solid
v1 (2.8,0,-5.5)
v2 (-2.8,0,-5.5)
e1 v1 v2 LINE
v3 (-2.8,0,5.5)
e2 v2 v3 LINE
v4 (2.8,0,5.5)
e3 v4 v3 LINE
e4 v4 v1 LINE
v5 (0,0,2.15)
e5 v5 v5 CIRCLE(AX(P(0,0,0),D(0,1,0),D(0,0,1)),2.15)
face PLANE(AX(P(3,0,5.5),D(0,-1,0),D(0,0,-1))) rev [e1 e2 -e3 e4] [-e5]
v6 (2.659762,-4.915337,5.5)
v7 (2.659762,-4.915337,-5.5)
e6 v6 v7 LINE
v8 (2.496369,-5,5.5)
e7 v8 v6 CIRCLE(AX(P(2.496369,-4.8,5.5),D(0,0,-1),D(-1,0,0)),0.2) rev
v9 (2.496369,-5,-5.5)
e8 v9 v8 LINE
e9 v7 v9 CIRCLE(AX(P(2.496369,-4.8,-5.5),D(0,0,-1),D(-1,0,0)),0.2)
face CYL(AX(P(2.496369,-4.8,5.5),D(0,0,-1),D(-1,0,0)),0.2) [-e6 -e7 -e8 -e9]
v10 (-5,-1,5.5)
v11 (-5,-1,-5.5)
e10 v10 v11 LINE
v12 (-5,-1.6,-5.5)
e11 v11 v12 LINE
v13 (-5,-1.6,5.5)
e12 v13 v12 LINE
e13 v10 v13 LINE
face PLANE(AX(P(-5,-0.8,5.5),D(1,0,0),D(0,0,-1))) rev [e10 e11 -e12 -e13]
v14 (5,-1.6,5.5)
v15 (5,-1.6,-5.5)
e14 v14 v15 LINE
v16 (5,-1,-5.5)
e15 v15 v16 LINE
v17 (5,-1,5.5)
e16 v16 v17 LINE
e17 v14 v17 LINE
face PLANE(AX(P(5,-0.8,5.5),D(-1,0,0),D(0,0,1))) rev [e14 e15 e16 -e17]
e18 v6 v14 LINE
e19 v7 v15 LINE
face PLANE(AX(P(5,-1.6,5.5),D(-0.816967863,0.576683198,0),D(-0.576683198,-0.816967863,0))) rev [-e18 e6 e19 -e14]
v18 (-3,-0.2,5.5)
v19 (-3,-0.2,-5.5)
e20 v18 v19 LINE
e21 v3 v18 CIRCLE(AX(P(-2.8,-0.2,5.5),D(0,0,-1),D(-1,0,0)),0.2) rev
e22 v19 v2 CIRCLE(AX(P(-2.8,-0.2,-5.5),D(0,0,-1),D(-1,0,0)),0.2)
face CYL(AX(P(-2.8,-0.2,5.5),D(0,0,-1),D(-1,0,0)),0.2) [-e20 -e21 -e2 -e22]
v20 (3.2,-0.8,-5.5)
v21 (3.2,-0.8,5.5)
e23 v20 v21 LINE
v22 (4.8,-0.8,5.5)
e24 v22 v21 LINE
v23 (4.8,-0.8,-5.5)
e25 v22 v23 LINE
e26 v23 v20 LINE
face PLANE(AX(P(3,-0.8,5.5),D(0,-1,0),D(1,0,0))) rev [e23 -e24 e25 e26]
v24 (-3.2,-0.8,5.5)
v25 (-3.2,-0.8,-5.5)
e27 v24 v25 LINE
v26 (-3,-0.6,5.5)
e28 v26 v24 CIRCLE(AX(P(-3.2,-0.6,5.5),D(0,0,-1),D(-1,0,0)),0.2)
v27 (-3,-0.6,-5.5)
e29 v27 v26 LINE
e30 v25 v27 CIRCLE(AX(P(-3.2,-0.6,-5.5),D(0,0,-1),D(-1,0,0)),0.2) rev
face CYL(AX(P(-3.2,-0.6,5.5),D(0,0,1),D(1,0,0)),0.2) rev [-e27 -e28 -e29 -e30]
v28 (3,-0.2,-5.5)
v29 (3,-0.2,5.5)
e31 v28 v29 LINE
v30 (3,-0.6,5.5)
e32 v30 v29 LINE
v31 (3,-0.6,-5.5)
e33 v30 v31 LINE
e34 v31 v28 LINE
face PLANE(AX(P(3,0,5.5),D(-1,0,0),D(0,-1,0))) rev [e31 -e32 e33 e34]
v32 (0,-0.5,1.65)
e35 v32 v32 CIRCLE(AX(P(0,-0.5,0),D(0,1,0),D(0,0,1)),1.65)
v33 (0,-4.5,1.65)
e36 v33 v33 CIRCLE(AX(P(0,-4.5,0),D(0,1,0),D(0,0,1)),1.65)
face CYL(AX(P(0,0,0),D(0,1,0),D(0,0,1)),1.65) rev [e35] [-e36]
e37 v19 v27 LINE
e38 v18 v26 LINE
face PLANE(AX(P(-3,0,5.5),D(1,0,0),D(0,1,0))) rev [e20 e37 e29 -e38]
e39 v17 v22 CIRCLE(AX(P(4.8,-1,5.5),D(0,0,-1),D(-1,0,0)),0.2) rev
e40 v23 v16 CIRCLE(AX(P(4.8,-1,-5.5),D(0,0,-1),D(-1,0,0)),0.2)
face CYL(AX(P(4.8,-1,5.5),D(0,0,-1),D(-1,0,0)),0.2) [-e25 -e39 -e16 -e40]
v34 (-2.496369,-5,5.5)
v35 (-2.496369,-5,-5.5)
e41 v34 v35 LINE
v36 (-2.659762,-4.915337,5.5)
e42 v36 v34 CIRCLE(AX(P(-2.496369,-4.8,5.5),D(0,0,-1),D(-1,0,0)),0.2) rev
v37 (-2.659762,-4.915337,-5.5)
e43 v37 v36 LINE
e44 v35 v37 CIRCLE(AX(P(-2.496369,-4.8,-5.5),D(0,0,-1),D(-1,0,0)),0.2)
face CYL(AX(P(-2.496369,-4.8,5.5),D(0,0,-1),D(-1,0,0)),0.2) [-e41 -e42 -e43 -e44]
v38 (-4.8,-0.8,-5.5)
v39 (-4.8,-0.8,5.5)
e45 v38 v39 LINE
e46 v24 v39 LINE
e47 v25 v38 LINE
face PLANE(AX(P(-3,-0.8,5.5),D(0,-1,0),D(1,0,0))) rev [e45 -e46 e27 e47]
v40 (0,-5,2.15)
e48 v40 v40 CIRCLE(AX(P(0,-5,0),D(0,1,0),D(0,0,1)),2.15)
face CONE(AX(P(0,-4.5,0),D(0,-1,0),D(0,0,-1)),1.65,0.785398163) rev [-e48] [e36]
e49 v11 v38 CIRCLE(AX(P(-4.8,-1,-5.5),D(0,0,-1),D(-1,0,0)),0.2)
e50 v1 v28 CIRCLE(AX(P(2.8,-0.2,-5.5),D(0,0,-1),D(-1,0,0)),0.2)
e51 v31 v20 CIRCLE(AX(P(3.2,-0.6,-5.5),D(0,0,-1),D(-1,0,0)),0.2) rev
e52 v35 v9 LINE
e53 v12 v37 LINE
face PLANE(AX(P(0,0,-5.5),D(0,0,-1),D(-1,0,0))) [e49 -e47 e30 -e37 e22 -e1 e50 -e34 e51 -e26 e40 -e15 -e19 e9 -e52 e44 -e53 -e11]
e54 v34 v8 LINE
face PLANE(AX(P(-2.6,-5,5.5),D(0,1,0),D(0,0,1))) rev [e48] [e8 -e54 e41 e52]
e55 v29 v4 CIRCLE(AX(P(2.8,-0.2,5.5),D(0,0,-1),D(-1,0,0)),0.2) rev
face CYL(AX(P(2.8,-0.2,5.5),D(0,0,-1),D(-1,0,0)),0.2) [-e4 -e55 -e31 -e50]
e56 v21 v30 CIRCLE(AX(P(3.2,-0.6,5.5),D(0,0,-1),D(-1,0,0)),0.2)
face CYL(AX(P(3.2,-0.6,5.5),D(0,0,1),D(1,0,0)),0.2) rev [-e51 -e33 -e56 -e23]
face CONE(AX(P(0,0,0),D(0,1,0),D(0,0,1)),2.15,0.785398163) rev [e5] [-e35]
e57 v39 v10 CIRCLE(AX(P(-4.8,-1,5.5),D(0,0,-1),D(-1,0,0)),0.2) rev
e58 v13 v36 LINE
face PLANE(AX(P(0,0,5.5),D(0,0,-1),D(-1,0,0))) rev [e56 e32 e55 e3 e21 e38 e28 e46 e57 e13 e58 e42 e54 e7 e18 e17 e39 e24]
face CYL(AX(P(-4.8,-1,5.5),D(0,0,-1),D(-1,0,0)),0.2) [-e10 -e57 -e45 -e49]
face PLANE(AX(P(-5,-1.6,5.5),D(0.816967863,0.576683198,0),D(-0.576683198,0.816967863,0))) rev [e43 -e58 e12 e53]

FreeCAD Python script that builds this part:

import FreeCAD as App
import Part
import Sketcher

V = App.Vector
Q = App.Units.Quantity


def edges_at(feature, points):
    """Names of the edges that pass closest to the given points."""
    edges = feature.Shape.Edges
    near = lambda p: min(range(len(edges)), key=lambda i: edges[i].distToShape(Part.Vertex(*p))[0])
    return sorted({f"Edge{near(p) + 1}" for p in points})

doc = App.newDocument("Part")
body = doc.addObject("PartDesign::Body", "Body")

sketch1 = body.newObject("Sketcher::SketchObject", "Sketch")
sketch1.AttachmentSupport = (doc.getObject("XY_Plane"), [""])
sketch1.MapMode = "FlatFace"
sketch1.addGeometry(Part.LineSegment(V(3, 0, 0), V(-3, 0, 0)), False)
sketch1.addGeometry(Part.LineSegment(V(-3, 0, 0), V(-3, -0.8, 0)), False)
sketch1.addGeometry(Part.LineSegment(V(-3, -0.8, 0), V(-5, -0.8, 0)), False)
sketch1.addGeometry(Part.LineSegment(V(-5, -0.8, 0), V(-5, -1.6, 0)), False)
sketch1.addGeometry(Part.LineSegment(V(-5, -1.6, 0), V(-2.6, -5, 0)), False)
sketch1.addGeometry(Part.LineSegment(V(-2.6, -5, 0), V(2.6, -5, 0)), False)
sketch1.addGeometry(Part.LineSegment(V(2.6, -5, 0), V(5, -1.6, 0)), False)
sketch1.addGeometry(Part.LineSegment(V(5, -1.6, 0), V(5, -0.8, 0)), False)
sketch1.addGeometry(Part.LineSegment(V(5, -0.8, 0), V(3, -0.8, 0)), False)
sketch1.addGeometry(Part.LineSegment(V(3, -0.8, 0), V(3, 0, 0)), False)
sketch1.addConstraint(Sketcher.Constraint("Coincident", 0, 2, 1, 1))
sketch1.addConstraint(Sketcher.Constraint("Coincident", 1, 2, 2, 1))
sketch1.addConstraint(Sketcher.Constraint("Coincident", 2, 2, 3, 1))
sketch1.addConstraint(Sketcher.Constraint("Coincident", 3, 2, 4, 1))
sketch1.addConstraint(Sketcher.Constraint("Coincident", 4, 2, 5, 1))
sketch1.addConstraint(Sketcher.Constraint("Coincident", 5, 2, 6, 1))
sketch1.addConstraint(Sketcher.Constraint("Coincident", 6, 2, 7, 1))
sketch1.addConstraint(Sketcher.Constraint("Coincident", 7, 2, 8, 1))
sketch1.addConstraint(Sketcher.Constraint("Coincident", 8, 2, 9, 1))
sketch1.addConstraint(Sketcher.Constraint("Coincident", 9, 2, 0, 1))
sketch1.addConstraint(Sketcher.Constraint("Horizontal", 0))
sketch1.addConstraint(Sketcher.Constraint("Vertical", 1))
sketch1.addConstraint(Sketcher.Constraint("Horizontal", 2))
sketch1.addConstraint(Sketcher.Constraint("Vertical", 3))
sketch1.addConstraint(Sketcher.Constraint("Horizontal", 5))
sketch1.addConstraint(Sketcher.Constraint("Vertical", 7))
sketch1.addConstraint(Sketcher.Constraint("Horizontal", 8))
sketch1.addConstraint(Sketcher.Constraint("Vertical", 9))
sketch1.addConstraint(Sketcher.Constraint("Symmetric", 0, 2, 9, 2, -1, 1))
sketch1.addConstraint(Sketcher.Constraint("Symmetric", 3, 2, 6, 2, -2))
sketch1.addConstraint(Sketcher.Constraint("Horizontal", 2, 2, 7, 2))
sketch1.addConstraint(Sketcher.Constraint("Equal", 1, 3))
sketch1.addConstraint(Sketcher.Constraint("Equal", 4, 6))
sketch1.addConstraint(Sketcher.Constraint("DistanceX", 0, 2, 0, 1, Q("6 mm")))
sketch1.addConstraint(Sketcher.Constraint("DistanceX", 2, 2, 2, 1, Q("2 mm")))
sketch1.addConstraint(Sketcher.Constraint("DistanceX", 5, 1, 5, 2, Q("5.2 mm")))
sketch1.addConstraint(Sketcher.Constraint("DistanceY", 1, 2, 1, 1, Q("0.8 mm")))
sketch1.addConstraint(Sketcher.Constraint("DistanceY", 4, 2, -1, 1, Q("5 mm")))
pad1 = body.newObject("PartDesign::Pad", "Pad")
pad1.Profile = sketch1
pad1.Length = 11
pad1.Midplane = True

sketch2 = body.newObject("Sketcher::SketchObject", "Sketch001")
sketch2.AttachmentSupport = (doc.getObject("YZ_Plane"), [""])
sketch2.MapMode = "FlatFace"
sketch2.addGeometry(Part.LineSegment(V(-5, 0, 0), V(0, 0, 0)), False)
sketch2.addGeometry(Part.LineSegment(V(0, 0, 0), V(0, 2.15, 0)), False)
sketch2.addGeometry(Part.LineSegment(V(0, 2.15, 0), V(-0.5, 1.65, 0)), False)
sketch2.addGeometry(Part.LineSegment(V(-0.5, 1.65, 0), V(-4.5, 1.65, 0)), False)
sketch2.addGeometry(Part.LineSegment(V(-4.5, 1.65, 0), V(-5, 2.15, 0)), False)
sketch2.addGeometry(Part.LineSegment(V(-5, 2.15, 0), V(-5, 0, 0)), False)
sketch2.addConstraint(Sketcher.Constraint("Coincident", 0, 2, 1, 1))
sketch2.addConstraint(Sketcher.Constraint("Coincident", 1, 2, 2, 1))
sketch2.addConstraint(Sketcher.Constraint("Coincident", 2, 2, 3, 1))
sketch2.addConstraint(Sketcher.Constraint("Coincident", 3, 2, 4, 1))
sketch2.addConstraint(Sketcher.Constraint("Coincident", 4, 2, 5, 1))
sketch2.addConstraint(Sketcher.Constraint("Coincident", 5, 2, 0, 1))
sketch2.addConstraint(Sketcher.Constraint("Horizontal", 0))
sketch2.addConstraint(Sketcher.Constraint("Vertical", 1))
sketch2.addConstraint(Sketcher.Constraint("Horizontal", 3))
sketch2.addConstraint(Sketcher.Constraint("Vertical", 5))
sketch2.addConstraint(Sketcher.Constraint("Coincident", 0, 2, -1, 1))
sketch2.addConstraint(Sketcher.Constraint("Perpendicular", 2, 4))
sketch2.addConstraint(Sketcher.Constraint("Horizontal", 1, 2, 4, 2))
sketch2.addConstraint(Sketcher.Constraint("Equal", 2, 4))
sketch2.addConstraint(Sketcher.Constraint("DistanceX", 0, 1, 0, 2, Q("5 mm")))
sketch2.addConstraint(Sketcher.Constraint("DistanceX", 3, 2, 3, 1, Q("4 mm")))
sketch2.addConstraint(Sketcher.Constraint("DistanceY", 1, 1, 1, 2, Q("2.15 mm")))
groove = body.newObject("PartDesign::Groove", "Groove")
groove.Profile = sketch2
groove.ReferenceAxis = (sketch2, ["H_Axis"])
groove.Angle = 360
doc.recompute()

fillet = body.newObject("PartDesign::Fillet", "Fillet")
fillet.Base = (groove, edges_at(groove, [
    (-3, 0, 0),
    (3, 0, 0),
    (3, -0.8, 0),
    (5, -0.8, 0),
    (2.6, -5, 0),
    (-2.6, -5, 0),
    (-5, -0.8, 0),
    (-3, -0.8, 0),
]))
fillet.Radius = 0.2

doc.recompute()
